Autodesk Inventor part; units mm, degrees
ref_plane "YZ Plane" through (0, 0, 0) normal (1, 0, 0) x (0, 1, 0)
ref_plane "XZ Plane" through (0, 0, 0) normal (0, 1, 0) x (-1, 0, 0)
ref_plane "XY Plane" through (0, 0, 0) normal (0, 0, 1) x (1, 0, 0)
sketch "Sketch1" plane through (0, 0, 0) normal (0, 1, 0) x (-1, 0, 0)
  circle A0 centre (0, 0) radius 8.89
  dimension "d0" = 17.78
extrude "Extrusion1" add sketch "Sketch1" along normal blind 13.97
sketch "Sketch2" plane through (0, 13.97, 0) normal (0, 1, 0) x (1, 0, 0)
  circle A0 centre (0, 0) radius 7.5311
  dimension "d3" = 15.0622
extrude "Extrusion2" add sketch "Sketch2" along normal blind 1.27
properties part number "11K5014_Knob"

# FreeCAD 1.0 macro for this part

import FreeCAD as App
import Part
import Sketcher

V = App.Vector
Q = App.Units.Quantity

doc = App.newDocument("Part")
params = doc.addObject("Spreadsheet::Sheet", "Params")
for row, (alias, value) in enumerate([
    ("sketch1_diameter", "0.7 in"),
    ("pad1_length", "0.55 in"),
    ("sketch2_diameter", "0.593 in"),
    ("pad2_length", "0.05 in"),
], start=1):
    params.set(f"A{row}", alias)
    params.set(f"B{row}", "=" + value)
    params.setAlias(f"B{row}", alias)

body = doc.addObject("PartDesign::Body", "Body")

sketch1 = body.newObject("Sketcher::SketchObject", "Sketch")
sketch1.AttachmentSupport = (doc.getObject("XZ_Plane"), [""])
sketch1.MapMode = "FlatFace"
sketch1.addGeometry(Part.Circle(V(0, 0, 0), V(0, 0, 1), 9), False)
sketch1.addConstraint(Sketcher.Constraint("Coincident", 0, 3, -1, 1))
sketch1.addConstraint(Sketcher.Constraint("Diameter", 0, Q("0.7 in")))
sketch1.setExpression("Constraints[1]", "Params.sketch1_diameter")
pad1 = body.newObject("PartDesign::Pad", "Pad")
pad1.Profile = sketch1
pad1.setExpression("Length", "Params.pad1_length")
pad1.Reversed = True

sketch2 = body.newObject("Sketcher::SketchObject", "Sketch001")
sketch2.AttachmentSupport = (doc.getObject("XZ_Plane"), [""])
sketch2.MapMode = "FlatFace"
sketch2.AttachmentOffset = App.Placement(V(0, 0, -0.55 * 25.4), App.Rotation())
sketch2.addGeometry(Part.Circle(V(0, 0, 0), V(0, 0, 1), 8), False)
sketch2.addConstraint(Sketcher.Constraint("Coincident", 0, 3, -1, 1))
sketch2.addConstraint(Sketcher.Constraint("Diameter", 0, Q("0.593 in")))
sketch2.setExpression("Constraints[1]", "Params.sketch2_diameter")
pad2 = body.newObject("PartDesign::Pad", "Pad001")
pad2.Profile = sketch2
pad2.setExpression("Length", "Params.pad2_length")
pad2.Reversed = True

doc.recompute()
